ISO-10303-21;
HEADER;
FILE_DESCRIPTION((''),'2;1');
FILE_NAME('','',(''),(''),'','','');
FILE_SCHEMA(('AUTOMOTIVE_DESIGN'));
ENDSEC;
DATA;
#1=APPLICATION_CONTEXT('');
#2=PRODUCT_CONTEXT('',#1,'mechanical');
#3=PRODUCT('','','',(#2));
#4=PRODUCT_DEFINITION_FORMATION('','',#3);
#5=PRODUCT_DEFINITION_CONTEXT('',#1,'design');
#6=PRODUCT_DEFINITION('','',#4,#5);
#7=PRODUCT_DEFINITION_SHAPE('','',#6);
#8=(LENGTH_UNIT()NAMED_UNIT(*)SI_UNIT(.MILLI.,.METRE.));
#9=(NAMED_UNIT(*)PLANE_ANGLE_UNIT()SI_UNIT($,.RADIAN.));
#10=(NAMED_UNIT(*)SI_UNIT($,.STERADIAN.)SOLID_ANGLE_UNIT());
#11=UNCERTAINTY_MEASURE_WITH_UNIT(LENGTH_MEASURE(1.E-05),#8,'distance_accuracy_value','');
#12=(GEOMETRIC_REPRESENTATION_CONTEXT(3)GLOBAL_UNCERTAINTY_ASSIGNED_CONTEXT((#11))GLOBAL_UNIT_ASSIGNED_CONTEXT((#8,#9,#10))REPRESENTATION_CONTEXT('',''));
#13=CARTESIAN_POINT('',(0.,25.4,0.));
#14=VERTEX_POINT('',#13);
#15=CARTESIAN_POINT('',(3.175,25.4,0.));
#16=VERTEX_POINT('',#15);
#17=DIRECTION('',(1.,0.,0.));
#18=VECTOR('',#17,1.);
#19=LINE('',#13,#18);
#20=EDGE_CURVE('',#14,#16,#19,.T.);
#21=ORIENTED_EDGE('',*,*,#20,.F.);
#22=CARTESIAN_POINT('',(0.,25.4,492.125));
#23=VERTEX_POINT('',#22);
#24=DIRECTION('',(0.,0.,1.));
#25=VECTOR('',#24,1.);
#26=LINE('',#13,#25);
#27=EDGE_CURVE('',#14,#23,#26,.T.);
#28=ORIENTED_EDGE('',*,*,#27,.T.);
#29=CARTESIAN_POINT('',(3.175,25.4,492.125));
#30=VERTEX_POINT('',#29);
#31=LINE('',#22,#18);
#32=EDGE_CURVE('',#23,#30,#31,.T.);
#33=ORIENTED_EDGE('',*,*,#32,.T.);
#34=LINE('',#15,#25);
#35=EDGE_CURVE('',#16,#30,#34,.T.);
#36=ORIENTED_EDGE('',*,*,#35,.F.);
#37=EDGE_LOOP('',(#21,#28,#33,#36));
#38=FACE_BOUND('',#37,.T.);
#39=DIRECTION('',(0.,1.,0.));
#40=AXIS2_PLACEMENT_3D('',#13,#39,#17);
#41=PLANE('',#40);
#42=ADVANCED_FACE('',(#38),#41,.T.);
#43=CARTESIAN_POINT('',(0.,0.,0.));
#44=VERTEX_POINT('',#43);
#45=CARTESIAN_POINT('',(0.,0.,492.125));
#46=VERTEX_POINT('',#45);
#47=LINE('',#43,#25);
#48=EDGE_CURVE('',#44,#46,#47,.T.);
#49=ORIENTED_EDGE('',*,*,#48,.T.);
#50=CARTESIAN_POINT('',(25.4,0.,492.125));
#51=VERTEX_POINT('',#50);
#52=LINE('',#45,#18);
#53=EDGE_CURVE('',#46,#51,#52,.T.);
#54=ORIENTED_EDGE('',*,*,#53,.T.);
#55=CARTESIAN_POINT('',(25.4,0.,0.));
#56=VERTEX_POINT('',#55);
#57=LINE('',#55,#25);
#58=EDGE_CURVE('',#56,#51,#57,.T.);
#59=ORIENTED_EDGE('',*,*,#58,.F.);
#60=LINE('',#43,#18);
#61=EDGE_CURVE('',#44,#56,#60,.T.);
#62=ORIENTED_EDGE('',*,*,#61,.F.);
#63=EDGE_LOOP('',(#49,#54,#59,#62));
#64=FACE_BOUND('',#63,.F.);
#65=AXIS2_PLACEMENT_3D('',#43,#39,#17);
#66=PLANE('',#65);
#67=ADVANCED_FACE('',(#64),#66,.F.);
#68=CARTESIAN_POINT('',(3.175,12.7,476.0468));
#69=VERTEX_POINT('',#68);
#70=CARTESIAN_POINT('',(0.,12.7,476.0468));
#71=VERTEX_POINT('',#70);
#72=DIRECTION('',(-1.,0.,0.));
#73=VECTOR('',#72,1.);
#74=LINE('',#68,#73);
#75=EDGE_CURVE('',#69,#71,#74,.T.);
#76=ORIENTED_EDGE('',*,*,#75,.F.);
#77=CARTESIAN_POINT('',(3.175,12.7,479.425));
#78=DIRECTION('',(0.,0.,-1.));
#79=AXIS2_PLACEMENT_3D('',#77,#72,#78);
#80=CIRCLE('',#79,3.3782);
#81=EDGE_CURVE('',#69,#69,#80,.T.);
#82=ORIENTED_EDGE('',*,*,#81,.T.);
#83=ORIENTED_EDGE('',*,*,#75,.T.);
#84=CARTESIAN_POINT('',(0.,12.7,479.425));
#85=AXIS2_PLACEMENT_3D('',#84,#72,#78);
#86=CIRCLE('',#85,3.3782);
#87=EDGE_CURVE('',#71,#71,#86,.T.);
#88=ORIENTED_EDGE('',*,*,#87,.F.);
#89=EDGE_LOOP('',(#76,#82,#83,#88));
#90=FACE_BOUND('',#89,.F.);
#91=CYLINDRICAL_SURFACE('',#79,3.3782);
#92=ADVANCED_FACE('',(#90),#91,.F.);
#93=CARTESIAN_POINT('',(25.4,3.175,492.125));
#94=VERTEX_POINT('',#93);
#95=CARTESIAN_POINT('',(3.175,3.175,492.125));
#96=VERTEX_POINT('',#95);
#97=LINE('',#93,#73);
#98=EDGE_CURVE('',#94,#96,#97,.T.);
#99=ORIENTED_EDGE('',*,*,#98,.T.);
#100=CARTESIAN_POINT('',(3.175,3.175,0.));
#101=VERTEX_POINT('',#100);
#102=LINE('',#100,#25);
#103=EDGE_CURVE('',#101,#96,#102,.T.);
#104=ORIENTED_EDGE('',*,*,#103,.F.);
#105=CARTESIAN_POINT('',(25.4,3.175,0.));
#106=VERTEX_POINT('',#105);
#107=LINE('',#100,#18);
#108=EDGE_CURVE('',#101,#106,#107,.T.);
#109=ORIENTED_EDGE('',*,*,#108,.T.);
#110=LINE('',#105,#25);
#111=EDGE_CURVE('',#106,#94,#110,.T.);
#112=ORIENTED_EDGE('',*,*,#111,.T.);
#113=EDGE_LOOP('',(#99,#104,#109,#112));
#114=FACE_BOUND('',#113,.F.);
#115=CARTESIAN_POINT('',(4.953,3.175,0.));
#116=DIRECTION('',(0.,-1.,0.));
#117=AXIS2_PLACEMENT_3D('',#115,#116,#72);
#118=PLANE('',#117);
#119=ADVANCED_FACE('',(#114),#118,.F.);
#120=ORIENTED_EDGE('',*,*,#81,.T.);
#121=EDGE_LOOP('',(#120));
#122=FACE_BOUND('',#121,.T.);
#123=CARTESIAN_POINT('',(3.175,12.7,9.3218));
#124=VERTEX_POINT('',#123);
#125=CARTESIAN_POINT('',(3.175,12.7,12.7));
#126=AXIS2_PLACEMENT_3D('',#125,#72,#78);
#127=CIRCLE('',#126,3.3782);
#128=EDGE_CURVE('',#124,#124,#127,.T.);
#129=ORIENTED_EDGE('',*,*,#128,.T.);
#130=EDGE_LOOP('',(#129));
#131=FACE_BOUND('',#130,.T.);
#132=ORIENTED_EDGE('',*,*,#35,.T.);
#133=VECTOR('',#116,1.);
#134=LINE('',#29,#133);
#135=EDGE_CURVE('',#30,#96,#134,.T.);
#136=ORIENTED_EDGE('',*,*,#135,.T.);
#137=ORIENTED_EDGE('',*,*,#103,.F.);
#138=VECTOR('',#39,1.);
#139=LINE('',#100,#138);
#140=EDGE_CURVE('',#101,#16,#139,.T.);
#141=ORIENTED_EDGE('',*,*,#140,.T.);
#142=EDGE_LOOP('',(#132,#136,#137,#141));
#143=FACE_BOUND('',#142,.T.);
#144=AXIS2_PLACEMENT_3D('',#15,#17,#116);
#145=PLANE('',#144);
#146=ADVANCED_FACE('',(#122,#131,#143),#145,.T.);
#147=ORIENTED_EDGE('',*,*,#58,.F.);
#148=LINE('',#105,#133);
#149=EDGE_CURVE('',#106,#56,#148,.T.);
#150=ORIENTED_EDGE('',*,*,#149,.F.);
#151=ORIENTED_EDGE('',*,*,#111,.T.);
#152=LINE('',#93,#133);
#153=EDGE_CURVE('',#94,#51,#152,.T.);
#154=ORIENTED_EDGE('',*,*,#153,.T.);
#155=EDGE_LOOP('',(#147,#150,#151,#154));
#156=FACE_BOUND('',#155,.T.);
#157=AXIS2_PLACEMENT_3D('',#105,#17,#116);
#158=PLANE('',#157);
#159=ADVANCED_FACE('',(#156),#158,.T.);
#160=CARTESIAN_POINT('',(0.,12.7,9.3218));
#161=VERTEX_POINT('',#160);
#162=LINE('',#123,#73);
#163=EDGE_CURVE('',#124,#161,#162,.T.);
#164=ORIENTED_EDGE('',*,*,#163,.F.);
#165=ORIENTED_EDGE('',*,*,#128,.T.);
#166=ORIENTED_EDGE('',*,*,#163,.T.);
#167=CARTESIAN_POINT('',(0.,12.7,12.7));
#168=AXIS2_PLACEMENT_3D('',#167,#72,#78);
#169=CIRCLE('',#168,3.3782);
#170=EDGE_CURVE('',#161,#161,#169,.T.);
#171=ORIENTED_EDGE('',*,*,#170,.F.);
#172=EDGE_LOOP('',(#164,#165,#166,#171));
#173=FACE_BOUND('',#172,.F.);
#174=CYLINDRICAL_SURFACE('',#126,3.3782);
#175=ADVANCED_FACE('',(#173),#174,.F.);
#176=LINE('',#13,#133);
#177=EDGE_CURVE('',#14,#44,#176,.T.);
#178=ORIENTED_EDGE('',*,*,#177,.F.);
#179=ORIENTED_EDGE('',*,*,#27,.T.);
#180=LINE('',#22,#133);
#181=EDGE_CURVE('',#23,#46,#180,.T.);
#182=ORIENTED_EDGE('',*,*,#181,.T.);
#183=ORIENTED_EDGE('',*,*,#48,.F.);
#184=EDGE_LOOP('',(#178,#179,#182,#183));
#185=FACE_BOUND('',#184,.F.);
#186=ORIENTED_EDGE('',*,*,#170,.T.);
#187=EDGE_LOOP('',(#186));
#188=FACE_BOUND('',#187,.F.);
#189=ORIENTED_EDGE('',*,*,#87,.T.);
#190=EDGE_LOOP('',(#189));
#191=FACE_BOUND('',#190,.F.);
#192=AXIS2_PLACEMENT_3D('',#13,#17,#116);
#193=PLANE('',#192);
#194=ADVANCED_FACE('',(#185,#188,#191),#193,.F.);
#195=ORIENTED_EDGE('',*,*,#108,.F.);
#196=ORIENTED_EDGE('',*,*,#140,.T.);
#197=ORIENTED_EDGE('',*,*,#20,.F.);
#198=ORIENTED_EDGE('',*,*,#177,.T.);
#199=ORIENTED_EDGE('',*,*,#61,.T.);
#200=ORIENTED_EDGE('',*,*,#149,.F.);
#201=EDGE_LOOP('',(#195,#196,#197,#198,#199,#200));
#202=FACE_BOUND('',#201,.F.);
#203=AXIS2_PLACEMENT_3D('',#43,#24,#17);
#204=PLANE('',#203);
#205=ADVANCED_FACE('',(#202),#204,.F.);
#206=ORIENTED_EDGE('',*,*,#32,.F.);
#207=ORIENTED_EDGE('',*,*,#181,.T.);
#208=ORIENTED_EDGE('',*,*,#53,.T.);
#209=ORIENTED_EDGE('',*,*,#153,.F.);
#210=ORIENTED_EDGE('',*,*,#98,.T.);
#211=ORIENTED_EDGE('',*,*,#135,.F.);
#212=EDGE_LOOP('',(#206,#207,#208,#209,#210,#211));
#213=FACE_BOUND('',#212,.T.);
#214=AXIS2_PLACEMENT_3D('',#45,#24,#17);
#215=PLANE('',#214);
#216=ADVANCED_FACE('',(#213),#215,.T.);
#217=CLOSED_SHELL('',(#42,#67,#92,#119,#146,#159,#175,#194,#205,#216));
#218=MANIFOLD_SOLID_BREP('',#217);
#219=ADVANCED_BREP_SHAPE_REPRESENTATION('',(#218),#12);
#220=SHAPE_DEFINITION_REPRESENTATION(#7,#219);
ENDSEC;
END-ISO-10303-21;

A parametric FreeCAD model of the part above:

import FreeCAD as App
import Part
import Sketcher

V = App.Vector
Q = App.Units.Quantity

doc = App.newDocument("Part")
body = doc.addObject("PartDesign::Body", "Body")

# Sketch on XY plane
sketch1 = body.newObject("Sketcher::SketchObject", "Sketch")
sketch1.AttachmentSupport = (doc.getObject("XY_Plane"), [""])
sketch1.MapMode = "FlatFace"
sketch1.addGeometry([
    Part.LineSegment(V(3.2, 25.4, 0), V(0, 25.4, 0)),  # 0
    Part.LineSegment(V(0, 25.4, 0), V(0, 0, 0)),  # 1
    Part.LineSegment(V(0, 0, 0), V(25.4, 0, 0)),  # 2
    Part.LineSegment(V(25.4, 0, 0), V(25.4, 3.2, 0)),  # 3
    Part.LineSegment(V(25.4, 3.2, 0), V(3.2, 3.2, 0)),  # 4
    Part.LineSegment(V(3.2, 3.2, 0), V(3.2, 25.4, 0)),  # 5
], False)
sketch1.addConstraint([
    Sketcher.Constraint("Coincident", 0, 2, 1, 1),
    Sketcher.Constraint("Coincident", 1, 2, 2, 1),
    Sketcher.Constraint("Coincident", 2, 2, 3, 1),
    Sketcher.Constraint("Coincident", 3, 2, 4, 1),
    Sketcher.Constraint("Coincident", 4, 2, 5, 1),
    Sketcher.Constraint("Coincident", 5, 2, 0, 1),
    Sketcher.Constraint("Horizontal", 0),
    Sketcher.Constraint("Vertical", 1),
    Sketcher.Constraint("Horizontal", 2),
    Sketcher.Constraint("Vertical", 3),
    Sketcher.Constraint("Horizontal", 4),
    Sketcher.Constraint("Vertical", 5),
    Sketcher.Constraint("Coincident", 1, 2, -1, 1),
    Sketcher.Constraint("Equal", 2, 1),
    Sketcher.Constraint("Equal", 0, 3),
    Sketcher.Constraint("DistanceX", 2, 1, 2, 2, Q("1 in")),
    Sketcher.Constraint("DistanceX", 0, 2, 0, 1, Q("0.125 in")),
])
pad1 = body.newObject("PartDesign::Pad", "Pad")
pad1.Profile = sketch1
pad1.Length = Q("19.375 in")

# Sketch on YZ plane
sketch2 = body.newObject("Sketcher::SketchObject", "Sketch001")
sketch2.AttachmentSupport = (doc.getObject("YZ_Plane"), [""])
sketch2.MapMode = "FlatFace"
sketch2.AttachmentOffset = App.Placement(V(0, 0, 0.125 * 25.4), App.Rotation())
sketch2.addGeometry([
    Part.Circle(V(12.7, 479.4, 0), V(0, 0, 1), 3.4),
    Part.Circle(V(12.7, 12.7, 0), V(0, 0, 1), 3.4),
], False)
sketch2.addConstraint([
    Sketcher.Constraint("Equal", 0, 1),
    Sketcher.Constraint("Vertical", 0, 3, 1, 3),
    Sketcher.Constraint("Diameter", 0, Q("0.266 in")),
    Sketcher.Constraint("DistanceX", -1, 1, 0, 3, Q("0.5 in")),
    Sketcher.Constraint("DistanceY", -1, 1, 1, 3, Q("0.5 in")),
    Sketcher.Constraint("DistanceY", -1, 1, 0, 3, Q("18.875 in")),
])
doc.recompute()
hole = body.newObject("PartDesign::Hole", "Hole")
hole.Profile = sketch2
hole.ThreadType = "None"
hole.Diameter = Q("0.266 in")
hole.DepthType = "Dimension"
hole.Depth = Q("1 in")
hole.DrillPoint = "Angled"
hole.DrillPointAngle = 118

doc.recompute()
